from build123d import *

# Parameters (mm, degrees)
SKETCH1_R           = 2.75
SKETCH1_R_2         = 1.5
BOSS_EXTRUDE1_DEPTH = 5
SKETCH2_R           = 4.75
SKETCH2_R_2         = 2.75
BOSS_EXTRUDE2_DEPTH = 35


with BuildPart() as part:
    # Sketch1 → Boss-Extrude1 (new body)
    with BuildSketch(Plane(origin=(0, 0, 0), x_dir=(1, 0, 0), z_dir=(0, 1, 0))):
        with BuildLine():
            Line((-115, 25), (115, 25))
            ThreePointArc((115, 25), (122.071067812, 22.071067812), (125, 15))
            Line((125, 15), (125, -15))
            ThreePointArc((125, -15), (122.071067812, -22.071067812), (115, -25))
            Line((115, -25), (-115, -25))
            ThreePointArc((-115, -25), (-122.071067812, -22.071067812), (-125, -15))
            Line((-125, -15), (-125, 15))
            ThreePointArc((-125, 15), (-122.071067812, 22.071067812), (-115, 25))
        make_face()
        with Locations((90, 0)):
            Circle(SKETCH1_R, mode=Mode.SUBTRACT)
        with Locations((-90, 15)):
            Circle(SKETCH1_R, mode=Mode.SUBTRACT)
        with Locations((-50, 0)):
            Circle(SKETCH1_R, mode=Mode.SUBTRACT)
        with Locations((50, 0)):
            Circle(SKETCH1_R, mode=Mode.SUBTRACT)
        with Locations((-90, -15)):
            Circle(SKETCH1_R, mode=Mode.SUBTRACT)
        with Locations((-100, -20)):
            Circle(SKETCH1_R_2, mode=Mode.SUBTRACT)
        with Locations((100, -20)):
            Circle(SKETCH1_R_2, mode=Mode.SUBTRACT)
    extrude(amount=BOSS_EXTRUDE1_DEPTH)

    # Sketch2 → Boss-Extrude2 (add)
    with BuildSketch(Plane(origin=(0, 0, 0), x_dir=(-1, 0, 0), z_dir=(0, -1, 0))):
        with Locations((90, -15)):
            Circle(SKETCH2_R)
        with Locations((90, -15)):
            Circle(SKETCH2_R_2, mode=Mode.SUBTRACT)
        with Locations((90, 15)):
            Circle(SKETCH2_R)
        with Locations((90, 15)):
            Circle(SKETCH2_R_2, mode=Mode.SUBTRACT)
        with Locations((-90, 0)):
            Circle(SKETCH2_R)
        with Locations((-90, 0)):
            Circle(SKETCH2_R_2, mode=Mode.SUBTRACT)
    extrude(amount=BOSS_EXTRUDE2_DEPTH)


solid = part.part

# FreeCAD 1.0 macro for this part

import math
import FreeCAD as App
import Part
import Sketcher
from FreeCAD import Vector

doc = App.newDocument("Part")
params = doc.addObject("Spreadsheet::Sheet", "Params")
for row, (alias, value) in enumerate([
    ("sketch1_diameter", "3 mm"),
    ("sketch1_radius", "10 mm"),
    ("sketch1_diameter2", "5.5 mm"),
    ("sketch1_width", "230 mm"),
    ("sketch1_height", "30 mm"),
    ("pad1_length", "5 mm"),
    ("sketch2_diameter", "9.5 mm"),
    ("sketch2_diameter2", "5.5 mm"),
    ("pad2_length", "35 mm"),
], start=1):
    params.set(f"A{row}", alias)
    params.set(f"B{row}", "=" + value)
    params.setAlias(f"B{row}", alias)

body = doc.addObject("PartDesign::Body", "Body")

# Sketch on XZ plane
sketch1 = doc.addObject("Sketcher::SketchObject", "Sketch")
body.addObject(sketch1)
sketch1.AttachmentSupport = (doc.XZ_Plane, [""])
sketch1.MapMode = "FlatFace"
sketch1.addGeometry(Part.LineSegment(Vector(115, -25, 0), Vector(-115, -25, 0)), False)
sketch1.addGeometry(Part.ArcOfCircle(Part.Circle(Vector(-115, -15, 0), Vector(0, 0, 1), 10), math.radians(180), math.radians(270)), False)
sketch1.addGeometry(Part.LineSegment(Vector(-125, -15, 0), Vector(-125, 15, 0)), False)
sketch1.addGeometry(Part.ArcOfCircle(Part.Circle(Vector(-115, 15, 0), Vector(0, 0, 1), 10), math.radians(90), math.radians(180)), False)
sketch1.addGeometry(Part.LineSegment(Vector(-115, 25, 0), Vector(115, 25, 0)), False)
sketch1.addGeometry(Part.ArcOfCircle(Part.Circle(Vector(115, 15, 0), Vector(0, 0, 1), 10), math.radians(0), math.radians(90)), False)
sketch1.addGeometry(Part.LineSegment(Vector(125, 15, 0), Vector(125, -15, 0)), False)
sketch1.addGeometry(Part.ArcOfCircle(Part.Circle(Vector(115, -15, 0), Vector(0, 0, 1), 10), math.radians(-90), math.radians(0)), False)
sketch1.addGeometry(Part.Circle(Vector(100, 20, 0), Vector(0, 0, 1), 1.5), False)
sketch1.addGeometry(Part.Circle(Vector(-100, 20, 0), Vector(0, 0, 1), 1.5), False)
sketch1.addGeometry(Part.Circle(Vector(-90, 15, 0), Vector(0, 0, 1), 2.8), False)
sketch1.addGeometry(Part.Circle(Vector(90, 0, 0), Vector(0, 0, 1), 2.8), False)
sketch1.addGeometry(Part.Circle(Vector(50, 0, 0), Vector(0, 0, 1), 2.8), False)
sketch1.addGeometry(Part.Circle(Vector(-50, 0, 0), Vector(0, 0, 1), 2.8), False)
sketch1.addGeometry(Part.Circle(Vector(-90, -15, 0), Vector(0, 0, 1), 2.8), False)
sketch1.addConstraint(Sketcher.Constraint("Tangent", 0, 2, 1, 2))
sketch1.addConstraint(Sketcher.Constraint("Tangent", 1, 1, 2, 1))
sketch1.addConstraint(Sketcher.Constraint("Tangent", 2, 2, 3, 2))
sketch1.addConstraint(Sketcher.Constraint("Tangent", 3, 1, 4, 1))
sketch1.addConstraint(Sketcher.Constraint("Tangent", 4, 2, 5, 2))
sketch1.addConstraint(Sketcher.Constraint("Tangent", 5, 1, 6, 1))
sketch1.addConstraint(Sketcher.Constraint("Tangent", 6, 2, 7, 2))
sketch1.addConstraint(Sketcher.Constraint("Tangent", 7, 1, 0, 1))
sketch1.addConstraint(Sketcher.Constraint("Horizontal", 0))
sketch1.addConstraint(Sketcher.Constraint("Vertical", 2))
sketch1.addConstraint(Sketcher.Constraint("Horizontal", 4))
sketch1.addConstraint(Sketcher.Constraint("Vertical", 6))
sketch1.addConstraint(Sketcher.Constraint("Equal", 1, 3))
sketch1.addConstraint(Sketcher.Constraint("Equal", 3, 5))
sketch1.addConstraint(Sketcher.Constraint("Equal", 5, 7))
sketch1.addConstraint(Sketcher.Constraint("Equal", 8, 9))
sketch1.addConstraint(Sketcher.Constraint("Equal", 10, 11))
sketch1.addConstraint(Sketcher.Constraint("Equal", 11, 12))
sketch1.addConstraint(Sketcher.Constraint("Equal", 12, 13))
sketch1.addConstraint(Sketcher.Constraint("Equal", 13, 14))
sketch1.addConstraint(Sketcher.Constraint("Symmetric", 1, 3, 5, 3, -1, 1))
sketch1.addConstraint(Sketcher.Constraint("Symmetric", 12, 3, 13, 3, -1, 1))
sketch1.addConstraint(Sketcher.Constraint("Symmetric", 8, 3, 9, 3, -2))
sketch1.addConstraint(Sketcher.Constraint("Symmetric", 10, 3, 14, 3, -1))
sketch1.addConstraint(Sketcher.Constraint("PointOnObject", 11, 3, -1))
sketch1.addConstraint(Sketcher.Constraint("PointOnObject", 12, 3, -1))
sketch1.addConstraint(Sketcher.Constraint("Horizontal", 5, 3, 10, 3))
sketch1.addConstraint(Sketcher.Constraint("Diameter", 8, 3.0))
sketch1.addConstraint(Sketcher.Constraint("Radius", 1, 10.0))
sketch1.addConstraint(Sketcher.Constraint("Diameter", 10, 5.5))
sketch1.addConstraint(Sketcher.Constraint("DistanceX", 0, 2, 0, 1, 230.0))
sketch1.addConstraint(Sketcher.Constraint("DistanceY", 2, 1, 2, 2, 30.0))
sketch1.addConstraint(Sketcher.Constraint("DistanceX", -1, 1, 8, 3, 100.0))
sketch1.addConstraint(Sketcher.Constraint("DistanceY", -1, 1, 8, 3, 20.0))
sketch1.addConstraint(Sketcher.Constraint("DistanceX", 10, 3, -1, 1, 90.0))
sketch1.addConstraint(Sketcher.Constraint("DistanceX", -1, 1, 11, 3, 90.0))
sketch1.addConstraint(Sketcher.Constraint("DistanceX", -1, 1, 12, 3, 50.0))
sketch1.setExpression("Constraints[27]", "Params.sketch1_diameter")
sketch1.setExpression("Constraints[28]", "Params.sketch1_radius")
sketch1.setExpression("Constraints[29]", "Params.sketch1_diameter2")
sketch1.setExpression("Constraints[30]", "Params.sketch1_width")
sketch1.setExpression("Constraints[31]", "Params.sketch1_height")
pad1 = doc.addObject("PartDesign::Pad", "Pad")
body.addObject(pad1)
pad1.Profile = sketch1
pad1.setExpression("Length", "Params.pad1_length")
pad1.Reversed = True

# Sketch on XZ plane
sketch2 = doc.addObject("Sketcher::SketchObject", "Sketch001")
body.addObject(sketch2)
sketch2.AttachmentSupport = (doc.XZ_Plane, [""])
sketch2.MapMode = "FlatFace"
sketch2.addGeometry(Part.Circle(Vector(-90, 15, 0), Vector(0, 0, 1), 4.8), False)
sketch2.addGeometry(Part.Circle(Vector(-90, 15, 0), Vector(0, 0, 1), 2.8), False)
sketch2.addGeometry(Part.Circle(Vector(-90, -15, 0), Vector(0, 0, 1), 4.8), False)
sketch2.addGeometry(Part.Circle(Vector(-90, -15, 0), Vector(0, 0, 1), 2.8), False)
sketch2.addGeometry(Part.Circle(Vector(90, 0, 0), Vector(0, 0, 1), 4.8), False)
sketch2.addGeometry(Part.Circle(Vector(90, 0, 0), Vector(0, 0, 1), 2.8), False)
sketch2.addConstraint(Sketcher.Constraint("Coincident", 1, 3, 0, 3))
sketch2.addConstraint(Sketcher.Constraint("Coincident", 3, 3, 2, 3))
sketch2.addConstraint(Sketcher.Constraint("Coincident", 5, 3, 4, 3))
sketch2.addConstraint(Sketcher.Constraint("Equal", 0, 2))
sketch2.addConstraint(Sketcher.Constraint("Equal", 1, 3))
sketch2.addConstraint(Sketcher.Constraint("Equal", 2, 4))
sketch2.addConstraint(Sketcher.Constraint("Equal", 3, 5))
sketch2.addConstraint(Sketcher.Constraint("Symmetric", 0, 3, 2, 3, -1))
sketch2.addConstraint(Sketcher.Constraint("PointOnObject", 4, 3, -1))
sketch2.addConstraint(Sketcher.Constraint("Diameter", 0, 9.5))
sketch2.addConstraint(Sketcher.Constraint("Diameter", 1, 5.5))
sketch2.addConstraint(Sketcher.Constraint("DistanceX", 0, 3, -1, 1, 90.0))
sketch2.addConstraint(Sketcher.Constraint("DistanceY", -1, 1, 0, 3, 15.0))
sketch2.addConstraint(Sketcher.Constraint("DistanceX", -1, 1, 4, 3, 90.0))
sketch2.setExpression("Constraints[9]", "Params.sketch2_diameter")
sketch2.setExpression("Constraints[10]", "Params.sketch2_diameter2")
pad2 = doc.addObject("PartDesign::Pad", "Pad001")
body.addObject(pad2)
pad2.Profile = sketch2
pad2.setExpression("Length", "Params.pad2_length")

doc.recompute()
